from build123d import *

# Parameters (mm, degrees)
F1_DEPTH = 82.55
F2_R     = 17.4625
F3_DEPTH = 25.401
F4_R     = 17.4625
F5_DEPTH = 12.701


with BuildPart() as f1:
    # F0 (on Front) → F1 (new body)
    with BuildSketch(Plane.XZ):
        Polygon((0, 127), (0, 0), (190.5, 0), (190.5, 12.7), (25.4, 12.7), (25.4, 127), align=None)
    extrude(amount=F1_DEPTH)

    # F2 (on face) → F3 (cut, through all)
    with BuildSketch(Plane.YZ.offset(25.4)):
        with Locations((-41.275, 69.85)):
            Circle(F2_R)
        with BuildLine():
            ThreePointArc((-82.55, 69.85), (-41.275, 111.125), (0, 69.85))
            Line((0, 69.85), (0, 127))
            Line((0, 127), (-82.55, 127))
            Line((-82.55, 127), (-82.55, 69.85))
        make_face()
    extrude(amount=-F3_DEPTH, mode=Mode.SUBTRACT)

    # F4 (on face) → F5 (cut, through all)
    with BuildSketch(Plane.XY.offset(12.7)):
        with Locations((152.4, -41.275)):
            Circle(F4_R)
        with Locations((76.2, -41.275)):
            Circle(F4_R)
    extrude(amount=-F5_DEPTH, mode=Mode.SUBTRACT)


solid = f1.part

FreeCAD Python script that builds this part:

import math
import FreeCAD as App
import Part
import Sketcher

V = App.Vector
Q = App.Units.Quantity

doc = App.newDocument("Part")
body = doc.addObject("PartDesign::Body", "Body")

# Sketch on XZ plane
sketch1 = body.newObject("Sketcher::SketchObject", "Sketch")
sketch1.AttachmentSupport = (doc.getObject("XZ_Plane"), [""])
sketch1.MapMode = "FlatFace"
sketch1.addGeometry([
    Part.LineSegment(V(0, 127, 0), V(0, 0, 0)),  # 0
    Part.LineSegment(V(0, 0, 0), V(190, 0, 0)),  # 1
    Part.LineSegment(V(190, 0, 0), V(190, 13, 0)),  # 2
    Part.LineSegment(V(190, 13, 0), V(25, 13, 0)),  # 3
    Part.LineSegment(V(25, 13, 0), V(25, 127, 0)),  # 4
    Part.LineSegment(V(25, 127, 0), V(0, 127, 0)),  # 5
], False)
sketch1.addConstraint([
    Sketcher.Constraint("Coincident", 0, 2, 1, 1),
    Sketcher.Constraint("Coincident", 1, 2, 2, 1),
    Sketcher.Constraint("Coincident", 2, 2, 3, 1),
    Sketcher.Constraint("Coincident", 3, 2, 4, 1),
    Sketcher.Constraint("Coincident", 4, 2, 5, 1),
    Sketcher.Constraint("Coincident", 5, 2, 0, 1),
    Sketcher.Constraint("Vertical", 0),
    Sketcher.Constraint("Horizontal", 1),
    Sketcher.Constraint("Vertical", 2),
    Sketcher.Constraint("Horizontal", 3),
    Sketcher.Constraint("Vertical", 4),
    Sketcher.Constraint("Horizontal", 5),
    Sketcher.Constraint("Coincident", 0, 2, -1, 1),
    Sketcher.Constraint("DistanceX", 5, 2, 5, 1, Q("1 in")),
    Sketcher.Constraint("DistanceY", 0, 2, 0, 1, Q("5 in")),
    Sketcher.Constraint("DistanceX", 1, 1, 1, 2, Q("7.5 in")),
    Sketcher.Constraint("DistanceY", 2, 1, 2, 2, Q("0.5 in")),
])
pad1 = body.newObject("PartDesign::Pad", "Pad")
pad1.Profile = sketch1
pad1.Length = Q("3.25 in")

# Sketch on YZ plane
sketch2 = body.newObject("Sketcher::SketchObject", "Sketch001")
sketch2.AttachmentSupport = (doc.getObject("YZ_Plane"), [""])
sketch2.MapMode = "FlatFace"
sketch2.AttachmentOffset = App.Placement(V(0, 0, 1 * 25.4), App.Rotation())
sketch2.addGeometry([
    Part.Circle(V(-41, 70, 0), V(0, 0, 1), 17),  # 0
    Part.ArcOfCircle(Part.Circle(V(-41, 70, 0), V(0, 0, 1), 41), math.radians(0), math.radians(180)),  # 1
    Part.LineSegment(V(0, 70, 0), V(0, 127, 0)),  # 2
    Part.LineSegment(V(0, 127, 0), V(-83, 127, 0)),  # 3
    Part.LineSegment(V(-83, 127, 0), V(-83, 70, 0)),  # 4
], False)
sketch2.addConstraint([
    Sketcher.Constraint("Tangent", 1, 1, 2, 1),
    Sketcher.Constraint("Coincident", 2, 2, 3, 1),
    Sketcher.Constraint("Coincident", 3, 2, 4, 1),
    Sketcher.Constraint("Tangent", 4, 2, 1, 2),
    Sketcher.Constraint("Vertical", 2),
    Sketcher.Constraint("Horizontal", 3),
    Sketcher.Constraint("Vertical", 4),
    Sketcher.Constraint("Coincident", 1, 3, 0, 3),
    Sketcher.Constraint("PointOnObject", 1, 1, -2),
    Sketcher.Constraint("Diameter", 0, Q("1.375 in")),
    Sketcher.Constraint("DistanceY", -1, 1, 2, 2, Q("5 in")),
    Sketcher.Constraint("Radius", 1, Q("1.625 in")),
    Sketcher.Constraint("DistanceY", 2, 1, 2, 2, Q("2.25 in")),
])
pocket1 = body.newObject("PartDesign::Pocket", "Pocket")
pocket1.Profile = sketch2
pocket1.Type = "ThroughAll"

# Sketch on XY plane
sketch3 = body.newObject("Sketcher::SketchObject", "Sketch002")
sketch3.AttachmentSupport = (doc.getObject("XY_Plane"), [""])
sketch3.MapMode = "FlatFace"
sketch3.AttachmentOffset = App.Placement(V(0, 0, 0.5 * 25.4), App.Rotation())
sketch3.addGeometry([
    Part.Circle(V(152, -41, 0), V(0, 0, 1), 17),
    Part.Circle(V(76, -41, 0), V(0, 0, 1), 17),
], False)
sketch3.addConstraint([
    Sketcher.Constraint("Equal", 0, 1),
    Sketcher.Constraint("Horizontal", 0, 3, 1, 3),
    Sketcher.Constraint("Diameter", 0, Q("1.375 in")),
    Sketcher.Constraint("DistanceX", -1, 1, 0, 3, Q("6 in")),
    Sketcher.Constraint("DistanceX", -1, 1, 1, 3, Q("3 in")),
    Sketcher.Constraint("DistanceY", 0, 3, -1, 1, Q("1.625 in")),
])
pocket2 = body.newObject("PartDesign::Pocket", "Pocket001")
pocket2.Profile = sketch3
pocket2.Type = "ThroughAll"

doc.recompute()
